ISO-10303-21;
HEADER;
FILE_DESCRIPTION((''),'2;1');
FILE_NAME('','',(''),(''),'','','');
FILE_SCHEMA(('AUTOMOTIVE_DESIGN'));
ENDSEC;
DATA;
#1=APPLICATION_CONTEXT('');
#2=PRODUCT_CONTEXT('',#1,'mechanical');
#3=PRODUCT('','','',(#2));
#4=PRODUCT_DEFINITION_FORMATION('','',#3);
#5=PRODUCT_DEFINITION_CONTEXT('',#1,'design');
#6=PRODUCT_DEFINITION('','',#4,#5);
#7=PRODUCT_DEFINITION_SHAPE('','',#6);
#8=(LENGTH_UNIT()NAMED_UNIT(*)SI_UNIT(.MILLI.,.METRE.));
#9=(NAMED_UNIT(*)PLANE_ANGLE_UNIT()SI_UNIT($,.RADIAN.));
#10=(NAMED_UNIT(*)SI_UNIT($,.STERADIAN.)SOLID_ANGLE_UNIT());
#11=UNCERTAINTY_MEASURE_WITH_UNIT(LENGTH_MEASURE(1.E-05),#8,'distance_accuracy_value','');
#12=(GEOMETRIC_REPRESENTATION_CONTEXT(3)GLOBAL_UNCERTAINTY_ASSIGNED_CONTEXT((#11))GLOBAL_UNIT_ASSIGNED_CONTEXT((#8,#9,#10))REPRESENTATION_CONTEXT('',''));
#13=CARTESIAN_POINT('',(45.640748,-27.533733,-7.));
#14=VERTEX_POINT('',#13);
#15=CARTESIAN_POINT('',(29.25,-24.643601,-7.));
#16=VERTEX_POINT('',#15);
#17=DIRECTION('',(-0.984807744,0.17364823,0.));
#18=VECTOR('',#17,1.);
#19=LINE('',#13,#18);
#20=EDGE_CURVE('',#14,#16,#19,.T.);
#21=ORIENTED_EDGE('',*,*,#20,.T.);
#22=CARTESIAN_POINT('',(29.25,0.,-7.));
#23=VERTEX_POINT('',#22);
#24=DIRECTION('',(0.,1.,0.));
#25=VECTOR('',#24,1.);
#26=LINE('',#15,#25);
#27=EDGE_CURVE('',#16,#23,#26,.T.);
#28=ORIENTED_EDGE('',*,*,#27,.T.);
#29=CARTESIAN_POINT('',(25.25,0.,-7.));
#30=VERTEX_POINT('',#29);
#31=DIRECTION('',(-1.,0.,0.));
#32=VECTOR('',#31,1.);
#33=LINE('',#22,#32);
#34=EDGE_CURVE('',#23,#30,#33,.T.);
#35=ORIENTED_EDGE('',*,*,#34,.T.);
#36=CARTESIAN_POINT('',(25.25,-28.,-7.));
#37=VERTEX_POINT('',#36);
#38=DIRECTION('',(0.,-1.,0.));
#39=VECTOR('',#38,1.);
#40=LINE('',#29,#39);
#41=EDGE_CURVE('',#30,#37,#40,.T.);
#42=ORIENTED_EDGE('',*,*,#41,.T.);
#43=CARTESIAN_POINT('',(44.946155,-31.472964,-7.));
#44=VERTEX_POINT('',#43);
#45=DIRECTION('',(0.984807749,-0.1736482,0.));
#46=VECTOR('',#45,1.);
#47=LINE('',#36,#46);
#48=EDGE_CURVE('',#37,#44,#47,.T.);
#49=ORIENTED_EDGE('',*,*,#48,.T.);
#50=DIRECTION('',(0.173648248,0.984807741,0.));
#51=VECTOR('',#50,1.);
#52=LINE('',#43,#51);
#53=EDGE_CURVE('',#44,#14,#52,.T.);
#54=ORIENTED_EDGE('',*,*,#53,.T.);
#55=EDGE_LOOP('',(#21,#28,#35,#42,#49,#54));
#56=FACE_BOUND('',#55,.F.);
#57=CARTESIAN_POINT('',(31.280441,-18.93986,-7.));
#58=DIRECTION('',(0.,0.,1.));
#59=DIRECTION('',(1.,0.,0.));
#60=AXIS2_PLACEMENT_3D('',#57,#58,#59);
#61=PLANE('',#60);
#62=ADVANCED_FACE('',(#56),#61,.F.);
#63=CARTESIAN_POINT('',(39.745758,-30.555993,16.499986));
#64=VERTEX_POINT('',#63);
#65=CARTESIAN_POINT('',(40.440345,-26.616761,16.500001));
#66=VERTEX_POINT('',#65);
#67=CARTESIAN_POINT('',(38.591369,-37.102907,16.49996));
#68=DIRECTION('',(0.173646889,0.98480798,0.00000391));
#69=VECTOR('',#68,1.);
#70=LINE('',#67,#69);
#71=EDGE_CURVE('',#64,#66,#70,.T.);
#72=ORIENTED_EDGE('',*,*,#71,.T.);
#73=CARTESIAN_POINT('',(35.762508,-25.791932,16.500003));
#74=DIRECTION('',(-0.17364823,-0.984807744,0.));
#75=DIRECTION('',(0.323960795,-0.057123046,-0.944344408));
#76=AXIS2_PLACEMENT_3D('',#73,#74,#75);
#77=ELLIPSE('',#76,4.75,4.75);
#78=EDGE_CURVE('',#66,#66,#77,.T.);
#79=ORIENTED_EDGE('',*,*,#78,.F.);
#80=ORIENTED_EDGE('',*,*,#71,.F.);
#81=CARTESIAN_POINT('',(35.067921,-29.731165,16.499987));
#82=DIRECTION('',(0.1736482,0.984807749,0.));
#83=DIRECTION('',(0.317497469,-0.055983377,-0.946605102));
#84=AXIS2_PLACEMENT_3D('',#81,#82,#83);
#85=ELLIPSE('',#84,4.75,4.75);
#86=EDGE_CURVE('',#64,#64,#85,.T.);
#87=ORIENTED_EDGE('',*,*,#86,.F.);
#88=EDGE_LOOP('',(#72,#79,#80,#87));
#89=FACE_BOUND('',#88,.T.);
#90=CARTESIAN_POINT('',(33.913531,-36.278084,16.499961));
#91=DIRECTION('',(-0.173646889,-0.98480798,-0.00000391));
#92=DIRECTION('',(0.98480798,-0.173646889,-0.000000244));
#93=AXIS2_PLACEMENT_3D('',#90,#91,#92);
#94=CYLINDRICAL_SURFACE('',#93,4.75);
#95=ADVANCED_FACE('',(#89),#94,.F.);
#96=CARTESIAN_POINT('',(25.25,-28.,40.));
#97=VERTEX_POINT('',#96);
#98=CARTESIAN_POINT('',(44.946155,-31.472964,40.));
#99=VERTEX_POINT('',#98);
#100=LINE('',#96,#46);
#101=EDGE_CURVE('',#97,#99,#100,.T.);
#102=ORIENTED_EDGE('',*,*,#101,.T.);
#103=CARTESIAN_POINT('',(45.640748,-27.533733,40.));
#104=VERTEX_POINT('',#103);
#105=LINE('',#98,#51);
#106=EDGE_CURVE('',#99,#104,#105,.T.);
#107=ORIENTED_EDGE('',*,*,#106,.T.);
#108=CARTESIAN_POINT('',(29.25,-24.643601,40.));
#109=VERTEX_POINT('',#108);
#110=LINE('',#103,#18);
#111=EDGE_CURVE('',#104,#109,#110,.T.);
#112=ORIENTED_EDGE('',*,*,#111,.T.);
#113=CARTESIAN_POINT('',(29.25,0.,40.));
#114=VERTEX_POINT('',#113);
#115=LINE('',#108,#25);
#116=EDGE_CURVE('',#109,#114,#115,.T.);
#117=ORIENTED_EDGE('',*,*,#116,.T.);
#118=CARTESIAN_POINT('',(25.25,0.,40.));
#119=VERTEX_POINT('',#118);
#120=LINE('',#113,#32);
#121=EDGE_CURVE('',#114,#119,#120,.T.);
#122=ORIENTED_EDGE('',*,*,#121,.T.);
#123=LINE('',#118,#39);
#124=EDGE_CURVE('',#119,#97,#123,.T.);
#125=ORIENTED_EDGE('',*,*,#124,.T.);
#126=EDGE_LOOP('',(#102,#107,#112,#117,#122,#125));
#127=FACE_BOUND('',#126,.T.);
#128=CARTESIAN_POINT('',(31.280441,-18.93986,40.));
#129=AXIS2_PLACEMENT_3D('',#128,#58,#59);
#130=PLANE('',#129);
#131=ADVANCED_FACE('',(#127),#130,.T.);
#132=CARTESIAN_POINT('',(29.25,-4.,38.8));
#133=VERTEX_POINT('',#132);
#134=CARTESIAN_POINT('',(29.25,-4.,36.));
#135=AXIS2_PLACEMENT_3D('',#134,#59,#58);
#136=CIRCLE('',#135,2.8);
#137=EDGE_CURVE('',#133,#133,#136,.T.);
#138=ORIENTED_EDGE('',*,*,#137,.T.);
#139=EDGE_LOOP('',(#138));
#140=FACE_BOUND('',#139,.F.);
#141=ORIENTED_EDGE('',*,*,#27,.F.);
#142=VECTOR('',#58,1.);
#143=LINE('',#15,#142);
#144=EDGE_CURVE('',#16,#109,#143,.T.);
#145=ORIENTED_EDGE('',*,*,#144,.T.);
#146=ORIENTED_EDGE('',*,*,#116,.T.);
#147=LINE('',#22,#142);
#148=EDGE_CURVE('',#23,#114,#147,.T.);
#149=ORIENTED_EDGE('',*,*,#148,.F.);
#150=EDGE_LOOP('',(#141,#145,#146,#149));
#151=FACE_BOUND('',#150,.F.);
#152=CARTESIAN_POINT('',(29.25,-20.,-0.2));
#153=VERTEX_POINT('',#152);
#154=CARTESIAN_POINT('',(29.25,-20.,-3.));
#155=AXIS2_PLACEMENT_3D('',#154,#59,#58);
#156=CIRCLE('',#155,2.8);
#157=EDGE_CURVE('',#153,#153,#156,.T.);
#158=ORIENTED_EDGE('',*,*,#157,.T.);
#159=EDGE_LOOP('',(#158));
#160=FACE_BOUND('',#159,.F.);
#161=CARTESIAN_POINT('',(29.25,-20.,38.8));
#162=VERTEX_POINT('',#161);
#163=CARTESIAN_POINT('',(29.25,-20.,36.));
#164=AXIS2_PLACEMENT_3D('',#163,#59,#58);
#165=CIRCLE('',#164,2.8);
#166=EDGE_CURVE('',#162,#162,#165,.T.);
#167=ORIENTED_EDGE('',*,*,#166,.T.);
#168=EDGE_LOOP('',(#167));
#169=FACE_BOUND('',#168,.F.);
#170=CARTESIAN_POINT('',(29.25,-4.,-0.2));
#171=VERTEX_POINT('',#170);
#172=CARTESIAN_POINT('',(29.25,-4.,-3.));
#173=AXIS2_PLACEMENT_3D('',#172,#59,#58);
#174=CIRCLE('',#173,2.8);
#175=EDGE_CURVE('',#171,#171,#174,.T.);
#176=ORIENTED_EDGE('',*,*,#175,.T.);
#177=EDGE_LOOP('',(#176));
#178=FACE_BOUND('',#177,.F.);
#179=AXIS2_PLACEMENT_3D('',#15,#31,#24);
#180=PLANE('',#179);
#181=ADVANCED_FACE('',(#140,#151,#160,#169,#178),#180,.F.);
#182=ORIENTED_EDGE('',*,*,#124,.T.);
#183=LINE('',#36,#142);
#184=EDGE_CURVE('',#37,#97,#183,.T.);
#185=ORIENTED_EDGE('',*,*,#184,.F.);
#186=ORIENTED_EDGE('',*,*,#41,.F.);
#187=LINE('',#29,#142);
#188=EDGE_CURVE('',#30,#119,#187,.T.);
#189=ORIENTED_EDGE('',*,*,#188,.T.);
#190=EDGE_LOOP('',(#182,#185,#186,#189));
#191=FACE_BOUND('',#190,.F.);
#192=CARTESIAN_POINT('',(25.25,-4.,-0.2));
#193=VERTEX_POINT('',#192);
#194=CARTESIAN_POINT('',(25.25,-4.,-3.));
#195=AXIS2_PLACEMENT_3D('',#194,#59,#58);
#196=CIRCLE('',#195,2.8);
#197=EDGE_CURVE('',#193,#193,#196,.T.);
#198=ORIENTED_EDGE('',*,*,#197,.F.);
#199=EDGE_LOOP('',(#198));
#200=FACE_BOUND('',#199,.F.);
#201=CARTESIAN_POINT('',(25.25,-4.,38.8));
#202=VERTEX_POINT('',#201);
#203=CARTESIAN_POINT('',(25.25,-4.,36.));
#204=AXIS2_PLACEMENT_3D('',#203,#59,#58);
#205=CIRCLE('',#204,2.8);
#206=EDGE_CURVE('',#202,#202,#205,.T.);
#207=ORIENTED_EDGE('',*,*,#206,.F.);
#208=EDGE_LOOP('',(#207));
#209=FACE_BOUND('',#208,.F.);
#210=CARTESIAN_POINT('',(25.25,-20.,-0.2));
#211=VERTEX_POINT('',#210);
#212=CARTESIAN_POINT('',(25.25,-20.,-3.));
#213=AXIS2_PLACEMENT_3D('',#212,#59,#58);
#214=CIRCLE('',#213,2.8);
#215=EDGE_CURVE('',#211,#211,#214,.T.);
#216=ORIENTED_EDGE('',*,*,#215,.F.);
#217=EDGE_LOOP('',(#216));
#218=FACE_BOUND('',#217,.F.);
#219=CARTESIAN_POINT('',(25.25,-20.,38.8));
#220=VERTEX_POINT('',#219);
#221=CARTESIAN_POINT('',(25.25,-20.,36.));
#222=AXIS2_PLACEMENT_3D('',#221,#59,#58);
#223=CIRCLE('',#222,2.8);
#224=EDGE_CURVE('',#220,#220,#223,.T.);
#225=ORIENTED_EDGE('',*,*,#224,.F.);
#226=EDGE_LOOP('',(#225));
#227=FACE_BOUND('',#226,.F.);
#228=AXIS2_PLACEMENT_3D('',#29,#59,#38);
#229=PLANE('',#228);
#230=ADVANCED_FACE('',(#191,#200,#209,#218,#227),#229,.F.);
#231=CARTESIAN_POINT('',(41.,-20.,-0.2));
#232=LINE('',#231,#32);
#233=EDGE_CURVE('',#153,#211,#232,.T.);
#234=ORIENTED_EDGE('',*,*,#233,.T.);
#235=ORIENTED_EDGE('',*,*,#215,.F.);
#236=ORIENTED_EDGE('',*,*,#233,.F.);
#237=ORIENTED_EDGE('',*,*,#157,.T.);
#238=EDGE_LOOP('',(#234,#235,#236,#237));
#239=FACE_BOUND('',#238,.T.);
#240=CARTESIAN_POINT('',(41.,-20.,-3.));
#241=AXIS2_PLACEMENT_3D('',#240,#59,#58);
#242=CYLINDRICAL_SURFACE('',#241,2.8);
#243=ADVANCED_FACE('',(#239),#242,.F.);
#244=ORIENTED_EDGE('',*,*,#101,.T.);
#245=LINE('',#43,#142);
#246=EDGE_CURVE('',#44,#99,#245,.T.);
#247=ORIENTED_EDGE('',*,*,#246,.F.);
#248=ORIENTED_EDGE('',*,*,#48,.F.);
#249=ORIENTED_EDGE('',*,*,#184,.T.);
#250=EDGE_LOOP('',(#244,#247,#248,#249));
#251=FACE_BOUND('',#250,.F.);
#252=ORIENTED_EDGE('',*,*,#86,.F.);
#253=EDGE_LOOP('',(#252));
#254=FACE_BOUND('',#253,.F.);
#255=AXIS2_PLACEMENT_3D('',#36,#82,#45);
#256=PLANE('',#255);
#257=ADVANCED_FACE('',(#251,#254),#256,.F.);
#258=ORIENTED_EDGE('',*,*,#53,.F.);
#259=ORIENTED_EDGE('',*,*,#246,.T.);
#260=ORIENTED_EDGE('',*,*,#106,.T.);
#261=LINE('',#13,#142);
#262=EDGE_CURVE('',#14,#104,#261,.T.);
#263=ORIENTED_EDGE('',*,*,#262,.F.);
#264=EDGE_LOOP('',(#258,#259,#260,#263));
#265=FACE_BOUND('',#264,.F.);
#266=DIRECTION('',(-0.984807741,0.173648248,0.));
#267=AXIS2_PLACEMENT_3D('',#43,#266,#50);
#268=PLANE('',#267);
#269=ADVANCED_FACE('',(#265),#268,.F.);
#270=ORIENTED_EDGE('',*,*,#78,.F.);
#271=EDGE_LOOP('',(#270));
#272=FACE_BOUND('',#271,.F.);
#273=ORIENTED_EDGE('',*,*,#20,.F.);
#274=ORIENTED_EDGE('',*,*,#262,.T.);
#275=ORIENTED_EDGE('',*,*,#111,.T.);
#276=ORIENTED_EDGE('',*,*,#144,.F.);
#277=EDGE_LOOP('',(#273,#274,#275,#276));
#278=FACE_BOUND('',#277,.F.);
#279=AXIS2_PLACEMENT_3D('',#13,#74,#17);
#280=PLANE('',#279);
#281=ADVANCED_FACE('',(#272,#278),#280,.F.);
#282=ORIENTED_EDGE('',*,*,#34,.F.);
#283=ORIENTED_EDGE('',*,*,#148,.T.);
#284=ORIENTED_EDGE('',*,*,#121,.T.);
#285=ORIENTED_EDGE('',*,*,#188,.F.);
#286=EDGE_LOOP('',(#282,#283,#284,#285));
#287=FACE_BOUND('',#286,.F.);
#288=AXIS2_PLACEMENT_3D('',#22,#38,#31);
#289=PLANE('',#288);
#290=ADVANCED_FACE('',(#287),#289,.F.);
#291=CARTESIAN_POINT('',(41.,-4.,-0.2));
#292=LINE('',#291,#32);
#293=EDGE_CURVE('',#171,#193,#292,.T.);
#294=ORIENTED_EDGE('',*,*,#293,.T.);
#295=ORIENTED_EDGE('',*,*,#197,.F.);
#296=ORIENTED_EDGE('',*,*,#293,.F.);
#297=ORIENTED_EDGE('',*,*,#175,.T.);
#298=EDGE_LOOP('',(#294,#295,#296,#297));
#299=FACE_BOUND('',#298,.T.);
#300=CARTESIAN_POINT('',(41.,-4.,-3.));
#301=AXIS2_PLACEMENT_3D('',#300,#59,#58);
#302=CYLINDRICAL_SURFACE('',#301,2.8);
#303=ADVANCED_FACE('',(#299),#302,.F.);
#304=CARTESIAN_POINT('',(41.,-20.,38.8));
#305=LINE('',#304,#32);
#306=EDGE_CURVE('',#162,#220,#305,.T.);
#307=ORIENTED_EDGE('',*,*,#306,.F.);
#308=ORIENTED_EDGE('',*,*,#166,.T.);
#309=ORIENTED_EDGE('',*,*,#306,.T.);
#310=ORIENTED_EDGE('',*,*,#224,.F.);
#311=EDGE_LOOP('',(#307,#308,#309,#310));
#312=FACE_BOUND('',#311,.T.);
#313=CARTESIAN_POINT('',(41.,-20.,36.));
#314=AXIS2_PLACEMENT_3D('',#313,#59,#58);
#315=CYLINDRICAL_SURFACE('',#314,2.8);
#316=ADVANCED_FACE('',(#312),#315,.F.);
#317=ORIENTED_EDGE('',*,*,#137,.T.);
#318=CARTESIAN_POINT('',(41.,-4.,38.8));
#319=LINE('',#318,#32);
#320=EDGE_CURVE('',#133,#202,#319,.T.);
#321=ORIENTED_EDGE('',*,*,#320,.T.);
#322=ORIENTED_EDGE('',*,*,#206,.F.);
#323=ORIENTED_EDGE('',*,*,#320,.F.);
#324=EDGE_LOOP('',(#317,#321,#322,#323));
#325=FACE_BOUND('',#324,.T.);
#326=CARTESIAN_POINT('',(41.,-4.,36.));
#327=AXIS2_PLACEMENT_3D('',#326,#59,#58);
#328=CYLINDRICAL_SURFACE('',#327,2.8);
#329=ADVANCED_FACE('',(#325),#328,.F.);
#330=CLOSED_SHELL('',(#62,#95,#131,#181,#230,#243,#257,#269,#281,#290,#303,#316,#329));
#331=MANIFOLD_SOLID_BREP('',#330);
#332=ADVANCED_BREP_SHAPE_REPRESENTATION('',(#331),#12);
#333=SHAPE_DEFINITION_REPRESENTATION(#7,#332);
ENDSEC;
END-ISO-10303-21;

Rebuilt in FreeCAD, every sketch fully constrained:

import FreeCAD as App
import Part
import Sketcher
Q = App.Units.Quantity

doc = App.newDocument("Part")
body = doc.addObject("PartDesign::Body", "Body")

# Sketch on YZ plane
sketch1 = body.newObject("Sketcher::SketchObject", "Sketch")
sketch1.AttachmentSupport = (doc.getObject("YZ_Plane"), [""])
sketch1.MapMode = "FlatFace"
sketch1.AttachmentOffset = App.Placement(App.Vector(0, 0, 41), App.Rotation())
sketch1.addGeometry(Part.Circle(App.Vector(-20, -3, 0), App.Vector(0, 0, 1), 2.8), False)
sketch1.addConstraint([
    Sketcher.Constraint("Diameter", 0, Q("5.6 mm")),
    Sketcher.Constraint("DistanceX", 0, 3, -1, 1, Q("20 mm")),
    Sketcher.Constraint("DistanceY", 0, 3, -1, 1, Q("3 mm")),
])
pad1 = body.newObject("PartDesign::Pad", "Pad")
pad1.Profile = sketch1
pad1.Length = 60
pad1.Reversed = True
body2 = doc.addObject("PartDesign::Body", "Body001")

# Sketch on YZ plane
sketch2 = body2.newObject("Sketcher::SketchObject", "Sketch001")
sketch2.AttachmentSupport = (doc.getObject("YZ_Plane001"), [""])
sketch2.MapMode = "FlatFace"
sketch2.AttachmentOffset = App.Placement(App.Vector(0, 0, 41), App.Rotation())
sketch2.addGeometry(Part.Circle(App.Vector(-4, -3, 0), App.Vector(0, 0, 1), 2.8), False)
sketch2.addConstraint([
    Sketcher.Constraint("Diameter", 0, Q("5.6 mm")),
    Sketcher.Constraint("DistanceX", 0, 3, -1, 1, Q("4 mm")),
    Sketcher.Constraint("DistanceY", 0, 3, -1, 1, Q("3 mm")),
])
pad2 = body2.newObject("PartDesign::Pad", "Pad001")
pad2.Profile = sketch2
pad2.Length = 60
pad2.Reversed = True
body3 = doc.addObject("PartDesign::Body", "Body002")

# Sketch on YZ plane
sketch3 = body3.newObject("Sketcher::SketchObject", "Sketch002")
sketch3.AttachmentSupport = (doc.getObject("YZ_Plane002"), [""])
sketch3.MapMode = "FlatFace"
sketch3.AttachmentOffset = App.Placement(App.Vector(0, 0, 41), App.Rotation())
sketch3.addGeometry(Part.Circle(App.Vector(-4, 36, 0), App.Vector(0, 0, 1), 2.8), False)
sketch3.addConstraint([
    Sketcher.Constraint("Diameter", 0, Q("5.6 mm")),
    Sketcher.Constraint("DistanceX", 0, 3, -1, 1, Q("4 mm")),
    Sketcher.Constraint("DistanceY", -1, 1, 0, 3, Q("36 mm")),
])
pad3 = body3.newObject("PartDesign::Pad", "Pad002")
pad3.Profile = sketch3
pad3.Length = 60
pad3.Reversed = True
body4 = doc.addObject("PartDesign::Body", "Body003")

# Sketch on YZ plane
sketch4 = body4.newObject("Sketcher::SketchObject", "Sketch003")
sketch4.AttachmentSupport = (doc.getObject("YZ_Plane003"), [""])
sketch4.MapMode = "FlatFace"
sketch4.AttachmentOffset = App.Placement(App.Vector(0, 0, 41), App.Rotation())
sketch4.addGeometry(Part.Circle(App.Vector(-20, 36, 0), App.Vector(0, 0, 1), 2.8), False)
sketch4.addConstraint([
    Sketcher.Constraint("Diameter", 0, Q("5.6 mm")),
    Sketcher.Constraint("DistanceX", 0, 3, -1, 1, Q("20 mm")),
    Sketcher.Constraint("DistanceY", -1, 1, 0, 3, Q("36 mm")),
])
pad4 = body4.newObject("PartDesign::Pad", "Pad003")
pad4.Profile = sketch4
pad4.Length = 60
pad4.Reversed = True
body5 = doc.addObject("PartDesign::Body", "Body004")

# Sketch on XY plane
sketch5 = body5.newObject("Sketcher::SketchObject", "Sketch004")
sketch5.AttachmentSupport = (doc.getObject("XY_Plane004"), [""])
sketch5.MapMode = "FlatFace"
sketch5.addGeometry(Part.Circle(App.Vector(0, 0, 0), App.Vector(0, 0, 1), 4.75), False)
sketch5.addConstraint([
    Sketcher.Constraint("Coincident", 0, 3, -1, 1),
    Sketcher.Constraint("Diameter", 0, Q("9.5 mm")),
])
pad5 = body5.newObject("PartDesign::Pad", "Pad004")
pad5.Profile = sketch5
pad5.Length = 16
body6 = doc.addObject("PartDesign::Body", "Body005")
doc.recompute()

body5.Placement = App.Placement(App.Vector(0, 0, 0), App.Rotation(App.Vector(1, 0, 0), 270.000224))
boolean = body6.newObject("PartDesign::Boolean", "Boolean")
boolean.Type = "Fuse"
boolean.addObjects([body5])
body7 = doc.addObject("PartDesign::Body", "Body006")
doc.recompute()

body6.Placement = App.Placement(App.Vector(0, 0, 0), App.Rotation(App.Vector(0, 1, 0), 0.000014))
boolean2 = body7.newObject("PartDesign::Boolean", "Boolean001")
boolean2.Type = "Fuse"
boolean2.addObjects([body6])
body8 = doc.addObject("PartDesign::Body", "Body007")
doc.recompute()

body7.Placement = App.Placement(App.Vector(33.913531, -36.278084, 16.499961), App.Rotation(App.Vector(0, 0, 1), 350.000075))
boolean3 = body8.newObject("PartDesign::Boolean", "Boolean002")
boolean3.Type = "Fuse"
boolean3.addObjects([body7])
body9 = doc.addObject("PartDesign::Body", "Body008")

# Sketch on XY plane
sketch6 = body9.newObject("Sketcher::SketchObject", "Sketch005")
sketch6.AttachmentSupport = (doc.getObject("XY_Plane008"), [""])
sketch6.MapMode = "FlatFace"
sketch6.addGeometry([
    Part.LineSegment(App.Vector(29.25, 0, 0), App.Vector(25.25, 0, 0)),  # 0
    Part.LineSegment(App.Vector(25.25, 0, 0), App.Vector(25.25, -28, 0)),  # 1
    Part.LineSegment(App.Vector(25.25, -28, 0), App.Vector(44.946155, -31.472964, 0)),  # 2
    Part.LineSegment(App.Vector(44.946155, -31.472964, 0), App.Vector(45.640748, -27.533733, 0)),  # 3
    Part.LineSegment(App.Vector(45.640748, -27.533733, 0), App.Vector(29.25, -24.643601, 0)),  # 4
    Part.LineSegment(App.Vector(29.25, -24.643601, 0), App.Vector(29.25, 0, 0)),  # 5
], False)
sketch6.addConstraint([
    Sketcher.Constraint("Coincident", 0, 2, 1, 1),
    Sketcher.Constraint("Coincident", 1, 2, 2, 1),
    Sketcher.Constraint("Coincident", 2, 2, 3, 1),
    Sketcher.Constraint("Coincident", 3, 2, 4, 1),
    Sketcher.Constraint("Coincident", 4, 2, 5, 1),
    Sketcher.Constraint("Coincident", 5, 2, 0, 1),
    Sketcher.Constraint("Horizontal", 0),
    Sketcher.Constraint("Vertical", 1),
    Sketcher.Constraint("Vertical", 5),
    Sketcher.Constraint("PointOnObject", 0, 2, -1),
    Sketcher.Constraint("Perpendicular", 2, 3),
    Sketcher.Constraint("Perpendicular", 3, 4),
    Sketcher.Constraint("DistanceX", 0, 2, 0, 1, Q("4 mm")),
    Sketcher.Constraint("DistanceY", 1, 2, 1, 1, Q("28 mm")),
    Sketcher.Constraint("Angle", 2, Q("-10.000001 deg")),
    Sketcher.Constraint("Distance", 2, Q("20 mm")),
    Sketcher.Constraint("Distance", 3, Q("4 mm")),
    Sketcher.Constraint("DistanceX", -1, 1, 0, 2, Q("25.25 mm")),
])
pad6 = body9.newObject("PartDesign::Pad", "Pad005")
pad6.Profile = sketch6
pad6.Length = 47
body10 = doc.addObject("PartDesign::Body", "Body009")
doc.recompute()

body9.Placement = App.Placement(App.Vector(0, 0, -7), App.Rotation(App.Vector(0, 0, 1), 0))
boolean4 = body10.newObject("PartDesign::Boolean", "Boolean003")
boolean4.Type = "Fuse"
boolean4.addObjects([body9])
doc.recompute()

boolean5 = body10.newObject("PartDesign::Boolean", "Boolean004")
boolean5.Type = "Cut"
boolean5.addObjects([body8])
doc.recompute()

boolean6 = body10.newObject("PartDesign::Boolean", "Boolean005")
boolean6.Type = "Cut"
boolean6.addObjects([body4])
doc.recompute()

boolean7 = body10.newObject("PartDesign::Boolean", "Boolean006")
boolean7.Type = "Cut"
boolean7.addObjects([body3])
doc.recompute()

boolean8 = body10.newObject("PartDesign::Boolean", "Boolean007")
boolean8.Type = "Cut"
boolean8.addObjects([body2])
doc.recompute()

boolean9 = body10.newObject("PartDesign::Boolean", "Boolean008")
boolean9.Type = "Cut"
boolean9.addObjects([body])

doc.recompute()
